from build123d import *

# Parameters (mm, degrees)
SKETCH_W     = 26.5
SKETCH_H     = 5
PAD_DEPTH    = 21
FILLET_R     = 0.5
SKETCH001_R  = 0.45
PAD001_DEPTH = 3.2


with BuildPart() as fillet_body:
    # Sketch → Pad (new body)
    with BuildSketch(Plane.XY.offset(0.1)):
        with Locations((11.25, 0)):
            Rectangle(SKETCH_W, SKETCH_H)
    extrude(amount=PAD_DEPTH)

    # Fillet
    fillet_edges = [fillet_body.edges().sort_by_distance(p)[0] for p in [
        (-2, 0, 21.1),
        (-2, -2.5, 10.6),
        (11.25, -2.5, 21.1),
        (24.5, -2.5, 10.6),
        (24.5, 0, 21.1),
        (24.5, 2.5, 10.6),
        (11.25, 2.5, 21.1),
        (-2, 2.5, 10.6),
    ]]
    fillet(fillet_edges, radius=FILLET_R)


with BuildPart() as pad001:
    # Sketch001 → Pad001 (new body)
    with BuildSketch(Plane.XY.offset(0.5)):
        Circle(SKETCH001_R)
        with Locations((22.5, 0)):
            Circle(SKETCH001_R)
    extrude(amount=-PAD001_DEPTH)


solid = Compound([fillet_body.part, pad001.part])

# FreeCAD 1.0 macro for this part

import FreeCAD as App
import Part
import Sketcher
Q = App.Units.Quantity


def edges_at(feature, points):
    """Names of the edges that pass closest to the given points."""
    edges = feature.Shape.Edges
    near = lambda p: min(range(len(edges)), key=lambda i: edges[i].distToShape(Part.Vertex(*p))[0])
    return sorted({f"Edge{near(p) + 1}" for p in points})

doc = App.newDocument("Part")
params = doc.addObject("Spreadsheet::Sheet", "Params")
for row, (alias, value) in enumerate([
    ("sketch1_height", "5 mm"),
    ("sketch1_width", "26.5 mm"),
    ("pad1_length", "21 mm"),
    ("fillet_radius", "0.5 mm"),
    ("sketch2_diameter", "0.9 mm"),
    ("pad2_length", "3.2 mm"),
], start=1):
    params.set(f"A{row}", alias)
    params.set(f"B{row}", "=" + value)
    params.setAlias(f"B{row}", alias)

body = doc.addObject("PartDesign::Body", "Body")

sketch1 = body.newObject("Sketcher::SketchObject", "Sketch")
sketch1.AttachmentSupport = (doc.getObject("XY_Plane"), [""])
sketch1.MapMode = "FlatFace"
sketch1.AttachmentOffset = App.Placement(App.Vector(0, 0, 0.1), App.Rotation())
sketch1.addGeometry([
    Part.LineSegment(App.Vector(-2, 2, 0), App.Vector(-2, -2, 0)),
    Part.LineSegment(App.Vector(-2, -2, 0), App.Vector(24, -2, 0)),
    Part.LineSegment(App.Vector(24, -2, 0), App.Vector(24, 2, 0)),
    Part.LineSegment(App.Vector(24, 2, 0), App.Vector(-2, 2, 0)),
], False)
sketch1.addConstraint([
    Sketcher.Constraint("Coincident", 0, 2, 1, 1),
    Sketcher.Constraint("Coincident", 1, 2, 2, 1),
    Sketcher.Constraint("Coincident", 2, 2, 3, 1),
    Sketcher.Constraint("Coincident", 3, 2, 0, 1),
    Sketcher.Constraint("Vertical", 0),
    Sketcher.Constraint("Horizontal", 1),
    Sketcher.Constraint("Vertical", 2),
    Sketcher.Constraint("Horizontal", 3),
    Sketcher.Constraint("DistanceY", 0, 2, 0, 1, Q("5 mm")),
    Sketcher.Constraint("DistanceX", 1, 1, 1, 2, Q("26.5 mm")),
    Sketcher.Constraint("DistanceX", 0, 2, -1, 1, Q("2 mm")),
    Sketcher.Constraint("DistanceY", 0, 2, -1, 1, Q("2.5 mm")),
])
sketch1.setExpression("Constraints[8]", "Params.sketch1_height")
sketch1.setExpression("Constraints[9]", "Params.sketch1_width")
pad1 = body.newObject("PartDesign::Pad", "Pad")
pad1.Profile = sketch1
pad1.setExpression("Length", "Params.pad1_length")
doc.recompute()

fillet = body.newObject("PartDesign::Fillet", "Fillet")
fillet.Base = (pad1, edges_at(pad1, [
    (-2, 0, 21.1),
    (-2, -2.5, 10.6),
    (11.25, -2.5, 21.1),
    (24.5, -2.5, 10.6),
    (24.5, 0, 21.1),
    (24.5, 2.5, 10.6),
    (11.25, 2.5, 21.1),
    (-2, 2.5, 10.6),
]))
fillet.setExpression("Radius", "Params.fillet_radius")
body2 = doc.addObject("PartDesign::Body", "Body001")
body2.AllowCompound = True

sketch2 = body2.newObject("Sketcher::SketchObject", "Sketch001")
sketch2.AttachmentSupport = (doc.getObject("XY_Plane001"), [""])
sketch2.MapMode = "FlatFace"
sketch2.AttachmentOffset = App.Placement(App.Vector(0, 0, 0.5), App.Rotation())
sketch2.addGeometry([
    Part.Circle(App.Vector(0, 0, 0), App.Vector(0, 0, 1), 0.45),
    Part.Circle(App.Vector(22.5, 0, 0), App.Vector(0, 0, 1), 0.45),
], False)
sketch2.addConstraint([
    Sketcher.Constraint("Coincident", 0, 3, -1, 1),
    Sketcher.Constraint("Equal", 0, 1),
    Sketcher.Constraint("PointOnObject", 1, 3, -1),
    Sketcher.Constraint("Diameter", 0, Q("0.9 mm")),
    Sketcher.Constraint("DistanceX", -1, 1, 1, 3, Q("22.5 mm")),
])
sketch2.setExpression("Constraints[3]", "Params.sketch2_diameter")
pad2 = body2.newObject("PartDesign::Pad", "Pad001")
pad2.Profile = sketch2
pad2.setExpression("Length", "Params.pad2_length")
pad2.Reversed = True

doc.recompute()
